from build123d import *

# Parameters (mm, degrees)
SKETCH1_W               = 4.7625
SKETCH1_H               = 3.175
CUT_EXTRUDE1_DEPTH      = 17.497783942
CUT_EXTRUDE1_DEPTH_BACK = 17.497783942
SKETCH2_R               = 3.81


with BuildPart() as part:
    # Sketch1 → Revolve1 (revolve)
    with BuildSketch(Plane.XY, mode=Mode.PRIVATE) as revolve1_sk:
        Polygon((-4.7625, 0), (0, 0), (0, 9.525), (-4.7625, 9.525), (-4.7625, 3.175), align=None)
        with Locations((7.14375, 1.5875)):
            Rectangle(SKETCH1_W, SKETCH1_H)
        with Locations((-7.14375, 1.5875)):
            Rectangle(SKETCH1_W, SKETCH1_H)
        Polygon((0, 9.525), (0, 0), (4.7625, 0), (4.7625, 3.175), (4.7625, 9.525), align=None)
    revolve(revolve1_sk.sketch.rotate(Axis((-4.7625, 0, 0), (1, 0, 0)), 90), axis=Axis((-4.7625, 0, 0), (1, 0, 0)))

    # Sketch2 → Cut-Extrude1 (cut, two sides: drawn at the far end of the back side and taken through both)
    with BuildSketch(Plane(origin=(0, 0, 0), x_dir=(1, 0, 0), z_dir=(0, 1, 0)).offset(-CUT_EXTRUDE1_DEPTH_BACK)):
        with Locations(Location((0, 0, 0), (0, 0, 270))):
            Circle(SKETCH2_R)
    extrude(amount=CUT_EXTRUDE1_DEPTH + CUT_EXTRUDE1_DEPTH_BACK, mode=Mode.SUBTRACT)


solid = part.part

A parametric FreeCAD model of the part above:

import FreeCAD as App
import Part
import Sketcher

V = App.Vector
Q = App.Units.Quantity

doc = App.newDocument("Part")
body = doc.addObject("PartDesign::Body", "Body")

sketch1 = body.newObject("Sketcher::SketchObject", "Sketch")
sketch1.AttachmentSupport = (doc.getObject("XY_Plane"), [""])
sketch1.MapMode = "FlatFace"
sketch1.addGeometry([
    Part.LineSegment(V(-4.8, 9.5, 0), V(-4.8, 3.2, 0)),
    Part.LineSegment(V(-4.8, 3.2, 0), V(-9.5, 3.2, 0)),
    Part.LineSegment(V(-9.5, 3.2, 0), V(-9.5, 0, 0)),
    Part.LineSegment(V(-9.5, 0, 0), V(9.5, 0, 0)),
    Part.LineSegment(V(9.5, 0, 0), V(9.5, 3.2, 0)),
    Part.LineSegment(V(9.5, 3.2, 0), V(4.8, 3.2, 0)),
    Part.LineSegment(V(4.8, 3.2, 0), V(4.8, 9.5, 0)),
    Part.LineSegment(V(4.8, 9.5, 0), V(-4.8, 9.5, 0)),
], False)
sketch1.addConstraint([
    Sketcher.Constraint("Coincident", 0, 2, 1, 1),
    Sketcher.Constraint("Coincident", 1, 2, 2, 1),
    Sketcher.Constraint("Coincident", 2, 2, 3, 1),
    Sketcher.Constraint("Coincident", 3, 2, 4, 1),
    Sketcher.Constraint("Coincident", 4, 2, 5, 1),
    Sketcher.Constraint("Coincident", 5, 2, 6, 1),
    Sketcher.Constraint("Coincident", 6, 2, 7, 1),
    Sketcher.Constraint("Coincident", 7, 2, 0, 1),
    Sketcher.Constraint("Vertical", 0),
    Sketcher.Constraint("Horizontal", 1),
    Sketcher.Constraint("Vertical", 2),
    Sketcher.Constraint("Horizontal", 3),
    Sketcher.Constraint("Vertical", 4),
    Sketcher.Constraint("Horizontal", 5),
    Sketcher.Constraint("Vertical", 6),
    Sketcher.Constraint("Horizontal", 7),
    Sketcher.Constraint("Symmetric", 2, 2, 3, 2, -1, 1),
    Sketcher.Constraint("Symmetric", 0, 2, 5, 2, -2),
    Sketcher.Constraint("DistanceX", 3, 1, 3, 2, Q("0.75 in")),
    Sketcher.Constraint("DistanceY", 0, 2, 0, 1, Q("0.25 in")),
    Sketcher.Constraint("DistanceX", 1, 2, 1, 1, Q("0.1875 in")),
    Sketcher.Constraint("DistanceY", 2, 2, 2, 1, Q("0.125 in")),
])
revolution = body.newObject("PartDesign::Revolution", "Revolution")
revolution.Profile = sketch1
revolution.ReferenceAxis = (sketch1, ["H_Axis"])
revolution.Angle = 360

sketch2 = body.newObject("Sketcher::SketchObject", "Sketch001")
sketch2.AttachmentSupport = (doc.getObject("XZ_Plane"), [""])
sketch2.MapMode = "FlatFace"
sketch2.addGeometry(Part.Circle(V(0, 0, 0), V(0, 0, 1), 3.8), False)
sketch2.addConstraint([
    Sketcher.Constraint("Coincident", 0, 3, -1, 1),
    Sketcher.Constraint("Diameter", 0, Q("0.3 in")),
])
pocket1 = body.newObject("PartDesign::Pocket", "Pocket")
pocket1.Profile = sketch2
pocket1.Type = "ThroughAll"
pocket1.Midplane = True

doc.recompute()
